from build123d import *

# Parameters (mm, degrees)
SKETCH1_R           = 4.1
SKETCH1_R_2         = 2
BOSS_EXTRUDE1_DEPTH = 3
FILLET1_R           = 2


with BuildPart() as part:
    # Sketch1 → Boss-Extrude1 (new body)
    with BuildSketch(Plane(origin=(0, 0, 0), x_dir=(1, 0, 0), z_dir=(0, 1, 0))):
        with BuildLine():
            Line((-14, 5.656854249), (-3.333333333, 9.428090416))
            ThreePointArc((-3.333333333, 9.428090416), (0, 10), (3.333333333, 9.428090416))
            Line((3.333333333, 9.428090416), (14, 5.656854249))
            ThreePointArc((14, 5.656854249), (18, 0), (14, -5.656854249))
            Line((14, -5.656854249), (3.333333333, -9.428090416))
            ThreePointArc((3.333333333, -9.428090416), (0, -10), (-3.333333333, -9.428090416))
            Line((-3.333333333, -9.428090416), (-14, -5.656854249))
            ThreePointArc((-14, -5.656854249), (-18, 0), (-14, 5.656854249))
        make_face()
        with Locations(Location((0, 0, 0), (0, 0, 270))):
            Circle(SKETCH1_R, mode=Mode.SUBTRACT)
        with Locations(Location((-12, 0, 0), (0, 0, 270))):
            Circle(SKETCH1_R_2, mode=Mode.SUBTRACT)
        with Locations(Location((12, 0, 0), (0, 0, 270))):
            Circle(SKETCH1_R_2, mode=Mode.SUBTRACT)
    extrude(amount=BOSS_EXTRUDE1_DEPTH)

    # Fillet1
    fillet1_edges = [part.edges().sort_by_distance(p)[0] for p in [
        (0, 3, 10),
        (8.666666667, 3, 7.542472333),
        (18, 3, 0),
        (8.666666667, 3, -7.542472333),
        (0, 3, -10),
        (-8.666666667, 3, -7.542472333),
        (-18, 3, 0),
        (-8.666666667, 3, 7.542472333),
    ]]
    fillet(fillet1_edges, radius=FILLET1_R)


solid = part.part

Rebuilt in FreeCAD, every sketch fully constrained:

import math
import FreeCAD as App
import Part
import Sketcher
from FreeCAD import Vector
Q = App.Units.Quantity


def edges_at(feature, points):
    """Names of the edges that pass closest to the given points."""
    edges = feature.Shape.Edges
    near = lambda p: min(range(len(edges)), key=lambda i: edges[i].distToShape(Part.Vertex(*p))[0])
    return sorted({f"Edge{near(p) + 1}" for p in points})

doc = App.newDocument("Part")
params = doc.addObject("Spreadsheet::Sheet", "Params")
for row, (alias, value) in enumerate([
    ("sketch1_diameter", "4 mm"),
    ("sketch1_radius", "6 mm"),
    ("sketch1_radius2", "10 mm"),
    ("sketch1_diameter2", "8.2 mm"),
    ("pad1_length", "3 mm"),
    ("fillet_radius", "2 mm"),
], start=1):
    params.set(f"A{row}", alias)
    params.set(f"B{row}", "=" + value)
    params.setAlias(f"B{row}", alias)

body = doc.addObject("PartDesign::Body", "Body")

sketch1 = doc.addObject("Sketcher::SketchObject", "Sketch")
body.addObject(sketch1)
sketch1.AttachmentSupport = (doc.XZ_Plane, [""])
sketch1.MapMode = "FlatFace"
sketch1.addGeometry(Part.LineSegment(Vector(-3.3, -9.4, 0), Vector(-14, -5.7, 0)), False)
sketch1.addGeometry(Part.ArcOfCircle(Part.Circle(Vector(-12, 0, 0), Vector(0, 0, 1), 6), math.radians(109), math.radians(251)), False)
sketch1.addGeometry(Part.LineSegment(Vector(-14, 5.7, 0), Vector(-3.3, 9.4, 0)), False)
sketch1.addGeometry(Part.ArcOfCircle(Part.Circle(Vector(0, 0, 0), Vector(0, 0, 1), 10), math.radians(71), math.radians(109)), False)
sketch1.addGeometry(Part.LineSegment(Vector(3.3, 9.4, 0), Vector(14, 5.7, 0)), False)
sketch1.addGeometry(Part.ArcOfCircle(Part.Circle(Vector(12, 0, 0), Vector(0, 0, 1), 6), math.radians(-71), math.radians(71)), False)
sketch1.addGeometry(Part.LineSegment(Vector(14, -5.7, 0), Vector(3.3, -9.4, 0)), False)
sketch1.addGeometry(Part.ArcOfCircle(Part.Circle(Vector(0, 0, 0), Vector(0, 0, 1), 10), math.radians(-109), math.radians(-71)), False)
sketch1.addGeometry(Part.Circle(Vector(12, 0, 0), Vector(0, 0, 1), 2), False)
sketch1.addGeometry(Part.Circle(Vector(0, 0, 0), Vector(0, 0, 1), 4.1), False)
sketch1.addGeometry(Part.Circle(Vector(-12, 0, 0), Vector(0, 0, 1), 2), False)
sketch1.addConstraint(Sketcher.Constraint("Tangent", 0, 2, 1, 2))
sketch1.addConstraint(Sketcher.Constraint("Tangent", 1, 1, 2, 1))
sketch1.addConstraint(Sketcher.Constraint("Tangent", 2, 2, 3, 2))
sketch1.addConstraint(Sketcher.Constraint("Tangent", 3, 1, 4, 1))
sketch1.addConstraint(Sketcher.Constraint("Tangent", 4, 2, 5, 2))
sketch1.addConstraint(Sketcher.Constraint("Tangent", 5, 1, 6, 1))
sketch1.addConstraint(Sketcher.Constraint("Tangent", 6, 2, 7, 2))
sketch1.addConstraint(Sketcher.Constraint("Tangent", 7, 1, 0, 1))
sketch1.addConstraint(Sketcher.Constraint("Coincident", 3, 3, -1, 1))
sketch1.addConstraint(Sketcher.Constraint("Coincident", 7, 3, -1, 1))
sketch1.addConstraint(Sketcher.Constraint("Coincident", 9, 3, -1, 1))
sketch1.addConstraint(Sketcher.Constraint("Coincident", 8, 3, 5, 3))
sketch1.addConstraint(Sketcher.Constraint("Coincident", 10, 3, 1, 3))
sketch1.addConstraint(Sketcher.Constraint("Equal", 1, 5))
sketch1.addConstraint(Sketcher.Constraint("Equal", 3, 7))
sketch1.addConstraint(Sketcher.Constraint("Equal", 8, 10))
sketch1.addConstraint(Sketcher.Constraint("Symmetric", 1, 3, 5, 3, -1, 1))
sketch1.addConstraint(Sketcher.Constraint("PointOnObject", 1, 3, -1))
sketch1.addConstraint(Sketcher.Constraint("Diameter", 8, Q("4 mm")))
sketch1.addConstraint(Sketcher.Constraint("Radius", 1, Q("6 mm")))
sketch1.addConstraint(Sketcher.Constraint("Radius", 3, Q("10 mm")))
sketch1.addConstraint(Sketcher.Constraint("Diameter", 9, Q("8.2 mm")))
sketch1.addConstraint(Sketcher.Constraint("DistanceX", 1, 3, -1, 1, Q("12 mm")))
sketch1.setExpression("Constraints[18]", "Params.sketch1_diameter")
sketch1.setExpression("Constraints[19]", "Params.sketch1_radius")
sketch1.setExpression("Constraints[20]", "Params.sketch1_radius2")
sketch1.setExpression("Constraints[21]", "Params.sketch1_diameter2")
pad1 = doc.addObject("PartDesign::Pad", "Pad")
body.addObject(pad1)
pad1.Profile = sketch1
pad1.setExpression("Length", "Params.pad1_length")
pad1.Reversed = True
doc.recompute()

fillet = doc.addObject("PartDesign::Fillet", "Fillet")
body.addObject(fillet)
fillet.Base = (pad1, edges_at(pad1, [
    (0, 3, 10),
    (8.667, 3, 7.542),
    (18, 3, 0),
    (8.667, 3, -7.542),
    (0, 3, -10),
    (-8.667, 3, -7.542),
    (-18, 3, 0),
    (-8.667, 3, 7.542),
]))
fillet.setExpression("Radius", "Params.fillet_radius")

doc.recompute()
